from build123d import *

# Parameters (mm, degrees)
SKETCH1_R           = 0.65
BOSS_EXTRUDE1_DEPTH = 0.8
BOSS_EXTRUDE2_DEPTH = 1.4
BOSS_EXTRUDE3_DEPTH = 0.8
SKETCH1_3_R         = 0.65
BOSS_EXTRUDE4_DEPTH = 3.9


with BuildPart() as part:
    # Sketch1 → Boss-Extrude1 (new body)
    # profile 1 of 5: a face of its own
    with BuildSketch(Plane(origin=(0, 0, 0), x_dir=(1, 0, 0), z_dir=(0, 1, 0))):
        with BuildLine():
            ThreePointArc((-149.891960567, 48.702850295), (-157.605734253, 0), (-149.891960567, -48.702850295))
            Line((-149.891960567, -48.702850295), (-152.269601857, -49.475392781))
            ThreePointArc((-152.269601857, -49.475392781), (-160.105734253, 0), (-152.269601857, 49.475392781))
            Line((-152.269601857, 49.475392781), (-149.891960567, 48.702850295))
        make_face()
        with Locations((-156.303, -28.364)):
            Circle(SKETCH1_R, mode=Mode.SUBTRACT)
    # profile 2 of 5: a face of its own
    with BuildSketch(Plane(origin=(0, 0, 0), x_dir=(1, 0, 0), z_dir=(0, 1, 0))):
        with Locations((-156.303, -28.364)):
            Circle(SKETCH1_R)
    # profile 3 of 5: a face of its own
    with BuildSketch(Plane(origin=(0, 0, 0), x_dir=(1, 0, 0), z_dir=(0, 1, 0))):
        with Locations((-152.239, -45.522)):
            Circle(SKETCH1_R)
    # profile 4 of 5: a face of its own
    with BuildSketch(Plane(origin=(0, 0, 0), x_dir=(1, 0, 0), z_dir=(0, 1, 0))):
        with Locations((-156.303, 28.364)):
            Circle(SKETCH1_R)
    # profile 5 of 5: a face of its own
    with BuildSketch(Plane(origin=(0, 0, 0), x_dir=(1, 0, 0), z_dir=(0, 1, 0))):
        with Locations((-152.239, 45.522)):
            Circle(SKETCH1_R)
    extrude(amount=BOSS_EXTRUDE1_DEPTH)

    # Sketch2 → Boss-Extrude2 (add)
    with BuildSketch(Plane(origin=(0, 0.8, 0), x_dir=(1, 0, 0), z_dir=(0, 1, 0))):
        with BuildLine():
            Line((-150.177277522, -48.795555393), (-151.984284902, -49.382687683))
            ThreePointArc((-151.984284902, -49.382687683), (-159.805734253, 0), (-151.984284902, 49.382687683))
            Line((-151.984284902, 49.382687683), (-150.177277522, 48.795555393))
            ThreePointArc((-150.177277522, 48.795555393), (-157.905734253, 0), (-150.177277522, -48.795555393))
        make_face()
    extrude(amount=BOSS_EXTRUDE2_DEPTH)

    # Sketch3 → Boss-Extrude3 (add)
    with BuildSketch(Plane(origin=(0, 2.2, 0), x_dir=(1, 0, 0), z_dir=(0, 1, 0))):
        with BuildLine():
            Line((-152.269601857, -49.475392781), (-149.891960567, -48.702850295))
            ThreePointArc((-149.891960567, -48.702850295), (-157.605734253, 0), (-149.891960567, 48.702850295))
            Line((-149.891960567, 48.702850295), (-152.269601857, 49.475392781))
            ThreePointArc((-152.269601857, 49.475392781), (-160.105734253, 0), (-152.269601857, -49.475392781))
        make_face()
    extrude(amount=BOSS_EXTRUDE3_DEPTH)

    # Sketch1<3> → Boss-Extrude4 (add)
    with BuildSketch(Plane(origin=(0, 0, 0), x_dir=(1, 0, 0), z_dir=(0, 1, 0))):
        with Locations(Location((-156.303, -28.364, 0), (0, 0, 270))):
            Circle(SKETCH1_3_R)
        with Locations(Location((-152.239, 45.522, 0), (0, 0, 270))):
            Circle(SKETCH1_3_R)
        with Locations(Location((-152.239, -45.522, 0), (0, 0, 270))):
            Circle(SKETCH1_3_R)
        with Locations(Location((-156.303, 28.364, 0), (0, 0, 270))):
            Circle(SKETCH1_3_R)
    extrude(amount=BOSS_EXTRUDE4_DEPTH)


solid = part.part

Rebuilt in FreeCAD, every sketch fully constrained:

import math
import FreeCAD as App
import Part
import Sketcher

V = App.Vector
Q = App.Units.Quantity

doc = App.newDocument("Part")
body = doc.addObject("PartDesign::Body", "Body")

# Sketch on XZ plane
sketch1 = doc.addObject("Sketcher::SketchObject", "Sketch")
body.addObject(sketch1)
sketch1.AttachmentSupport = (doc.XZ_Plane, [""])
sketch1.MapMode = "FlatFace"
sketch1.addGeometry([
    Part.ArcOfCircle(Part.Circle(V(0, 0, 0), V(0, 0, 1), 157.6), math.radians(162), math.radians(198)),
    Part.LineSegment(V(-149.9, -48.7, 0), V(-152.3, -49.5, 0)),
    Part.ArcOfCircle(Part.Circle(V(0, 0, 0), V(0, 0, 1), 160.1), math.radians(162), math.radians(198)),
    Part.LineSegment(V(-152.3, 49.5, 0), V(-149.9, 48.7, 0)),
], False)
sketch1.addConstraint([
    Sketcher.Constraint("Coincident", 0, 2, 1, 1),
    Sketcher.Constraint("Coincident", 1, 2, 2, 2),
    Sketcher.Constraint("Coincident", 2, 1, 3, 1),
    Sketcher.Constraint("Coincident", 3, 2, 0, 1),
    Sketcher.Constraint("Coincident", 0, 3, -1, 1),
    Sketcher.Constraint("Coincident", 2, 3, -1, 1),
    Sketcher.Constraint("Vertical", 1, 2, 2, 1),
    Sketcher.Constraint("Vertical", 0, 2, 3, 2),
    Sketcher.Constraint("Angle", 1, Q("-162 deg")),
    Sketcher.Constraint("Distance", 1, 2.5),
    Sketcher.Constraint("Radius", 0, 157.605734),
    Sketcher.Constraint("DistanceX", 1, 2, -1, 1, 152.269602),
])
pad1 = doc.addObject("PartDesign::Pad", "Pad")
body.addObject(pad1)
pad1.Profile = sketch1
pad1.Length = 0.8
pad1.Reversed = True

# Sketch on XZ plane
sketch2 = doc.addObject("Sketcher::SketchObject", "Sketch001")
body.addObject(sketch2)
sketch2.AttachmentSupport = (doc.XZ_Plane, [""])
sketch2.MapMode = "FlatFace"
sketch2.AttachmentOffset = App.Placement(V(0, 0, -0.8), App.Rotation())
sketch2.addGeometry([
    Part.LineSegment(V(-152, 49.4, 0), V(-150.2, 48.8, 0)),
    Part.ArcOfCircle(Part.Circle(V(0, 0, 0), V(0, 0, 1), 157.9), math.radians(162), math.radians(198)),
    Part.LineSegment(V(-150.2, -48.8, 0), V(-152, -49.4, 0)),
    Part.ArcOfCircle(Part.Circle(V(0, 0, 0), V(0, 0, 1), 159.8), math.radians(162), math.radians(198)),
], False)
sketch2.addConstraint([
    Sketcher.Constraint("Coincident", 0, 2, 1, 1),
    Sketcher.Constraint("Coincident", 1, 2, 2, 1),
    Sketcher.Constraint("Coincident", 2, 2, 3, 2),
    Sketcher.Constraint("Coincident", 3, 1, 0, 1),
    Sketcher.Constraint("Coincident", 1, 3, -1, 1),
    Sketcher.Constraint("Coincident", 3, 3, -1, 1),
    Sketcher.Constraint("Vertical", 0, 2, 1, 2),
    Sketcher.Constraint("Vertical", 2, 2, 3, 1),
    Sketcher.Constraint("Angle", 0, Q("-18 deg")),
    Sketcher.Constraint("Distance", 0, 1.9),
    Sketcher.Constraint("Radius", 1, 157.905734),
    Sketcher.Constraint("DistanceY", 1, 2, 0, 2, 97.591111),
])
pad2 = doc.addObject("PartDesign::Pad", "Pad001")
body.addObject(pad2)
pad2.Profile = sketch2
pad2.Length = 1.4
pad2.Reversed = True

# Sketch on XZ plane
sketch3 = doc.addObject("Sketcher::SketchObject", "Sketch002")
body.addObject(sketch3)
sketch3.AttachmentSupport = (doc.XZ_Plane, [""])
sketch3.MapMode = "FlatFace"
sketch3.AttachmentOffset = App.Placement(V(0, 0, -2.2), App.Rotation())
sketch3.addGeometry([
    Part.LineSegment(V(-152.3, 49.5, 0), V(-149.9, 48.7, 0)),
    Part.ArcOfCircle(Part.Circle(V(0, 0, 0), V(0, 0, 1), 157.6), math.radians(162), math.radians(198)),
    Part.LineSegment(V(-149.9, -48.7, 0), V(-152.3, -49.5, 0)),
    Part.ArcOfCircle(Part.Circle(V(0, 0, 0), V(0, 0, 1), 160.1), math.radians(162), math.radians(198)),
], False)
sketch3.addConstraint([
    Sketcher.Constraint("Coincident", 0, 2, 1, 1),
    Sketcher.Constraint("Coincident", 1, 2, 2, 1),
    Sketcher.Constraint("Coincident", 2, 2, 3, 2),
    Sketcher.Constraint("Coincident", 3, 1, 0, 1),
    Sketcher.Constraint("Coincident", 1, 3, -1, 1),
    Sketcher.Constraint("Coincident", 3, 3, -1, 1),
    Sketcher.Constraint("Vertical", 0, 2, 1, 2),
    Sketcher.Constraint("Vertical", 2, 2, 3, 1),
    Sketcher.Constraint("Angle", 0, Q("-18 deg")),
    Sketcher.Constraint("Distance", 0, 2.5),
    Sketcher.Constraint("Radius", 1, 157.605734),
    Sketcher.Constraint("DistanceX", 2, 2, -1, 1, 152.269602),
])
pad3 = doc.addObject("PartDesign::Pad", "Pad002")
body.addObject(pad3)
pad3.Profile = sketch3
pad3.Length = 0.8
pad3.Reversed = True

# Sketch on XZ plane
sketch4 = doc.addObject("Sketcher::SketchObject", "Sketch003")
body.addObject(sketch4)
sketch4.AttachmentSupport = (doc.XZ_Plane, [""])
sketch4.MapMode = "FlatFace"
sketch4.addGeometry([
    Part.Circle(V(-156.3, 28.4, 0), V(0, 0, 1), 0.7),
    Part.Circle(V(-152.2, -45.5, 0), V(0, 0, 1), 0.7),
    Part.Circle(V(-152.2, 45.5, 0), V(0, 0, 1), 0.7),
    Part.Circle(V(-156.3, -28.4, 0), V(0, 0, 1), 0.7),
], False)
sketch4.addConstraint([
    Sketcher.Constraint("Equal", 0, 1),
    Sketcher.Constraint("Equal", 1, 2),
    Sketcher.Constraint("Equal", 2, 3),
    Sketcher.Constraint("Symmetric", 1, 3, 2, 3, -1),
    Sketcher.Constraint("Symmetric", 0, 3, 3, 3, -1),
    Sketcher.Constraint("Diameter", 0, 1.3),
    Sketcher.Constraint("DistanceX", 0, 3, -1, 1, 156.303),
    Sketcher.Constraint("DistanceY", -1, 1, 0, 3, 28.364),
    Sketcher.Constraint("DistanceX", 1, 3, -1, 1, 152.239),
    Sketcher.Constraint("DistanceY", 1, 3, -1, 1, 45.522),
])
pad4 = doc.addObject("PartDesign::Pad", "Pad003")
body.addObject(pad4)
pad4.Profile = sketch4
pad4.Length = 3.9
pad4.Reversed = True

doc.recompute()
